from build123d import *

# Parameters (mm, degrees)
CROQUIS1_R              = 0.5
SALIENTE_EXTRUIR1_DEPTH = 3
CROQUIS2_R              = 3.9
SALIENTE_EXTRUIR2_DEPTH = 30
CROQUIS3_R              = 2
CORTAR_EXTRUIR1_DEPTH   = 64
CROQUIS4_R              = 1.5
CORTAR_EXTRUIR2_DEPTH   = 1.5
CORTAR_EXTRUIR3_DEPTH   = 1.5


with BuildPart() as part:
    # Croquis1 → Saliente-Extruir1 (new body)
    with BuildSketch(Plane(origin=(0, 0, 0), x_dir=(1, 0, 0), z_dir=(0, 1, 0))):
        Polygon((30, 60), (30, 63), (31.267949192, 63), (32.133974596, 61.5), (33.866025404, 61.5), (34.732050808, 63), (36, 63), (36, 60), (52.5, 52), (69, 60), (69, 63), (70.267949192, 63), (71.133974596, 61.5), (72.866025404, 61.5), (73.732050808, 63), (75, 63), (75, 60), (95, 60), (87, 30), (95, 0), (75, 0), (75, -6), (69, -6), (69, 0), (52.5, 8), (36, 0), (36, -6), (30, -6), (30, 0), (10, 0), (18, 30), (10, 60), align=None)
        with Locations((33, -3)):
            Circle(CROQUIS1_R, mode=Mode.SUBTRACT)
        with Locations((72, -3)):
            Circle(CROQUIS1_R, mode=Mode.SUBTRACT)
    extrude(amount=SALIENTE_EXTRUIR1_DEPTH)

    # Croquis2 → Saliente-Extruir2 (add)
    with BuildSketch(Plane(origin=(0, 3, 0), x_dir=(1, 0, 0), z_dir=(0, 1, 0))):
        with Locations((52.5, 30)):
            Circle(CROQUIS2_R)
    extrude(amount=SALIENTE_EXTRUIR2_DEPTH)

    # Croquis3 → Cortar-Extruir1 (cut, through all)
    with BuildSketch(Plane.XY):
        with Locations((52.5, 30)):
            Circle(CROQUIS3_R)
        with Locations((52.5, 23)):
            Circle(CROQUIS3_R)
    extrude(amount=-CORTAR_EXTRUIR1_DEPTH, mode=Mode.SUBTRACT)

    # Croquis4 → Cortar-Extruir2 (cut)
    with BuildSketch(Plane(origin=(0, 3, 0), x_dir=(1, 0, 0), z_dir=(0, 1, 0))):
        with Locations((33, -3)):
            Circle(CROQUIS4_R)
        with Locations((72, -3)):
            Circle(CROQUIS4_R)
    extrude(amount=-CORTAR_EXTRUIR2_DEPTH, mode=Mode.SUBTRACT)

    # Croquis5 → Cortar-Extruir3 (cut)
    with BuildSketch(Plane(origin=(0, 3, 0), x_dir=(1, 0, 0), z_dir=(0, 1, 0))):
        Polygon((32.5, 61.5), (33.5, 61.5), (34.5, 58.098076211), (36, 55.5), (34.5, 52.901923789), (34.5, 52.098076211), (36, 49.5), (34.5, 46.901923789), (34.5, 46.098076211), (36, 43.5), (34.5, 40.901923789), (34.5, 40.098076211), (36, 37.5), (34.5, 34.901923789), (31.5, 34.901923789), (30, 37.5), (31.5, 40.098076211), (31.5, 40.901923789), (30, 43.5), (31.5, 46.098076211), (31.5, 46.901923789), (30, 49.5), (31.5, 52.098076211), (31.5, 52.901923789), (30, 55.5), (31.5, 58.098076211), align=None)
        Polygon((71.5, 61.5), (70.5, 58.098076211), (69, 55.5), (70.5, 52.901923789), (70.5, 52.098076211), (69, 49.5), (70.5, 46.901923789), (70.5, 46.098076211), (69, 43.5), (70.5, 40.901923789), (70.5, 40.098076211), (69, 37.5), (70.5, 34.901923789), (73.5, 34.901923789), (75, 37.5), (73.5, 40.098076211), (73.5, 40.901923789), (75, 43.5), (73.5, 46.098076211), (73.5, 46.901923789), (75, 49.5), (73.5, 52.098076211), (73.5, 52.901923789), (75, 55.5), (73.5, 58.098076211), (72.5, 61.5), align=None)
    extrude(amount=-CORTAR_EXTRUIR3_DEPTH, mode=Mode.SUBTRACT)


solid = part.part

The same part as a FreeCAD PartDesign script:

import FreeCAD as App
import Part
import Sketcher

V = App.Vector
Q = App.Units.Quantity

doc = App.newDocument("Part")
body = doc.addObject("PartDesign::Body", "Body")

sketch1 = body.newObject("Sketcher::SketchObject", "Sketch")
sketch1.AttachmentSupport = (doc.getObject("XZ_Plane"), [""])
sketch1.MapMode = "FlatFace"
sketch1.addGeometry([
    Part.LineSegment(V(30, -63, 0), V(30, -60, 0)),
    Part.LineSegment(V(30, -60, 0), V(10, -60, 0)),
    Part.LineSegment(V(10, -60, 0), V(18, -30, 0)),
    Part.LineSegment(V(18, -30, 0), V(10, 0, 0)),
    Part.LineSegment(V(10, 0, 0), V(30, 0, 0)),
    Part.LineSegment(V(30, 0, 0), V(30, 6, 0)),
    Part.LineSegment(V(30, 6, 0), V(36, 6, 0)),
    Part.LineSegment(V(36, 6, 0), V(36, 0, 0)),
    Part.LineSegment(V(36, 0, 0), V(52.5, -8, 0)),
    Part.LineSegment(V(52.5, -8, 0), V(69, 0, 0)),
    Part.LineSegment(V(69, 0, 0), V(69, 6, 0)),
    Part.LineSegment(V(69, 6, 0), V(75, 6, 0)),
    Part.LineSegment(V(75, 6, 0), V(75, 0, 0)),
    Part.LineSegment(V(75, 0, 0), V(95, 0, 0)),
    Part.LineSegment(V(95, 0, 0), V(87, -30, 0)),
    Part.LineSegment(V(87, -30, 0), V(95, -60, 0)),
    Part.LineSegment(V(95, -60, 0), V(75, -60, 0)),
    Part.LineSegment(V(75, -60, 0), V(75, -63, 0)),
    Part.LineSegment(V(75, -63, 0), V(73.732051, -63, 0)),
    Part.LineSegment(V(73.732051, -63, 0), V(72.866025, -61.5, 0)),
    Part.LineSegment(V(72.866025, -61.5, 0), V(71.133975, -61.5, 0)),
    Part.LineSegment(V(71.133975, -61.5, 0), V(70.267949, -63, 0)),
    Part.LineSegment(V(70.267949, -63, 0), V(69, -63, 0)),
    Part.LineSegment(V(69, -63, 0), V(69, -60, 0)),
    Part.LineSegment(V(69, -60, 0), V(52.5, -52, 0)),
    Part.LineSegment(V(52.5, -52, 0), V(36, -60, 0)),
    Part.LineSegment(V(36, -60, 0), V(36, -63, 0)),
    Part.LineSegment(V(36, -63, 0), V(34.732051, -63, 0)),
    Part.LineSegment(V(34.732051, -63, 0), V(33.866025, -61.5, 0)),
    Part.LineSegment(V(33.866025, -61.5, 0), V(32.133975, -61.5, 0)),
    Part.LineSegment(V(32.133975, -61.5, 0), V(31.267949, -63, 0)),
    Part.LineSegment(V(31.267949, -63, 0), V(30, -63, 0)),
    Part.Circle(V(72, 3, 0), V(0, 0, 1), 0.5),
    Part.Circle(V(33, 3, 0), V(0, 0, 1), 0.5),
], False)
sketch1.addConstraint([
    Sketcher.Constraint("Coincident", 0, 2, 1, 1),
    Sketcher.Constraint("Coincident", 1, 2, 2, 1),
    Sketcher.Constraint("Coincident", 2, 2, 3, 1),
    Sketcher.Constraint("Coincident", 3, 2, 4, 1),
    Sketcher.Constraint("Coincident", 4, 2, 5, 1),
    Sketcher.Constraint("Coincident", 5, 2, 6, 1),
    Sketcher.Constraint("Coincident", 6, 2, 7, 1),
    Sketcher.Constraint("Coincident", 7, 2, 8, 1),
    Sketcher.Constraint("Coincident", 8, 2, 9, 1),
    Sketcher.Constraint("Coincident", 9, 2, 10, 1),
    Sketcher.Constraint("Coincident", 10, 2, 11, 1),
    Sketcher.Constraint("Coincident", 11, 2, 12, 1),
    Sketcher.Constraint("Coincident", 12, 2, 13, 1),
    Sketcher.Constraint("Coincident", 13, 2, 14, 1),
    Sketcher.Constraint("Coincident", 14, 2, 15, 1),
    Sketcher.Constraint("Coincident", 15, 2, 16, 1),
    Sketcher.Constraint("Coincident", 16, 2, 17, 1),
    Sketcher.Constraint("Coincident", 17, 2, 18, 1),
    Sketcher.Constraint("Coincident", 18, 2, 19, 1),
    Sketcher.Constraint("Coincident", 19, 2, 20, 1),
    Sketcher.Constraint("Coincident", 20, 2, 21, 1),
    Sketcher.Constraint("Coincident", 21, 2, 22, 1),
    Sketcher.Constraint("Coincident", 22, 2, 23, 1),
    Sketcher.Constraint("Coincident", 23, 2, 24, 1),
    Sketcher.Constraint("Coincident", 24, 2, 25, 1),
    Sketcher.Constraint("Coincident", 25, 2, 26, 1),
    Sketcher.Constraint("Coincident", 26, 2, 27, 1),
    Sketcher.Constraint("Coincident", 27, 2, 28, 1),
    Sketcher.Constraint("Coincident", 28, 2, 29, 1),
    Sketcher.Constraint("Coincident", 29, 2, 30, 1),
    Sketcher.Constraint("Coincident", 30, 2, 31, 1),
    Sketcher.Constraint("Coincident", 31, 2, 0, 1),
    Sketcher.Constraint("Vertical", 0),
    Sketcher.Constraint("Horizontal", 1),
    Sketcher.Constraint("Horizontal", 4),
    Sketcher.Constraint("Vertical", 5),
    Sketcher.Constraint("Horizontal", 6),
    Sketcher.Constraint("Vertical", 7),
    Sketcher.Constraint("Vertical", 10),
    Sketcher.Constraint("Horizontal", 11),
    Sketcher.Constraint("Vertical", 12),
    Sketcher.Constraint("Horizontal", 13),
    Sketcher.Constraint("Horizontal", 16),
    Sketcher.Constraint("Vertical", 17),
    Sketcher.Constraint("Horizontal", 18),
    Sketcher.Constraint("Horizontal", 20),
    Sketcher.Constraint("Horizontal", 22),
    Sketcher.Constraint("Vertical", 23),
    Sketcher.Constraint("Vertical", 26),
    Sketcher.Constraint("Horizontal", 27),
    Sketcher.Constraint("Horizontal", 29),
    Sketcher.Constraint("Horizontal", 31),
    Sketcher.Constraint("Equal", 32, 33),
    Sketcher.Constraint("PointOnObject", 3, 2, -1),
    Sketcher.Constraint("PointOnObject", 7, 2, -1),
    Sketcher.Constraint("PointOnObject", 9, 2, -1),
    Sketcher.Constraint("PointOnObject", 12, 2, -1),
    Sketcher.Constraint("Parallel", 2, 14),
    Sketcher.Constraint("Parallel", 3, 15),
    Sketcher.Constraint("Parallel", 8, 24),
    Sketcher.Constraint("Parallel", 9, 25),
    Sketcher.Constraint("Parallel", 19, 28),
    Sketcher.Constraint("Parallel", 21, 30),
    Sketcher.Constraint("Horizontal", 32, 3, 33, 3),
    Sketcher.Constraint("Horizontal", 6, 2, 10, 2),
    Sketcher.Constraint("Horizontal", 2, 2, 14, 2),
    Sketcher.Constraint("Horizontal", 1, 2, 15, 2),
    Sketcher.Constraint("Horizontal", 18, 2, 21, 2),
    Sketcher.Constraint("Horizontal", 16, 2, 23, 2),
    Sketcher.Constraint("Horizontal", 23, 2, 25, 2),
    Sketcher.Constraint("Horizontal", 22, 2, 26, 2),
    Sketcher.Constraint("Horizontal", 20, 2, 28, 2),
    Sketcher.Constraint("Horizontal", 27, 2, 30, 2),
    Sketcher.Constraint("Vertical", 1, 2, 3, 2),
    Sketcher.Constraint("Vertical", 0, 2, 4, 2),
    Sketcher.Constraint("Vertical", 13, 2, 15, 2),
    Sketcher.Constraint("Vertical", 12, 2, 16, 2),
    Sketcher.Constraint("Vertical", 10, 2, 22, 2),
    Sketcher.Constraint("Vertical", 8, 2, 24, 2),
    Sketcher.Constraint("Vertical", 7, 2, 25, 2),
    Sketcher.Constraint("Equal", 6, 11),
    Sketcher.Constraint("Equal", 4, 13),
    Sketcher.Constraint("Equal", 18, 22),
    Sketcher.Constraint("Equal", 22, 27),
    Sketcher.Constraint("Equal", 20, 29),
    Sketcher.Constraint("Equal", 11, 5),
    Sketcher.Constraint("Equal", 19, 21),
    Sketcher.Constraint("Diameter", 32, 1.0),
    Sketcher.Constraint("DistanceX", 1, 2, 1, 1, 20.0),
    Sketcher.Constraint("DistanceX", 6, 1, 6, 2, 6.0),
    Sketcher.Constraint("DistanceY", 0, 1, 0, 2, 3.0),
    Sketcher.Constraint("Angle", 19, Q("120 deg")),
    Sketcher.Constraint("DistanceX", -1, 1, 32, 3, 72.0),
    Sketcher.Constraint("DistanceY", -1, 1, 32, 3, 3.0),
    Sketcher.Constraint("DistanceX", -1, 1, 33, 3, 33.0),
    Sketcher.Constraint("DistanceX", -1, 1, 0, 2, 30.0),
    Sketcher.Constraint("DistanceY", 0, 2, -1, 1, 60.0),
    Sketcher.Constraint("DistanceX", -1, 1, 2, 2, 18.0),
    Sketcher.Constraint("DistanceY", 8, 2, -1, 1, 8.0),
    Sketcher.Constraint("DistanceX", -1, 1, 9, 2, 69.0),
    Sketcher.Constraint("DistanceY", 19, 2, -1, 1, 61.5),
    Sketcher.Constraint("DistanceX", 18, 2, 18, 1, 1.267949),
])
pad1 = body.newObject("PartDesign::Pad", "Pad")
pad1.Profile = sketch1
pad1.Length = 3
pad1.Reversed = True

sketch2 = body.newObject("Sketcher::SketchObject", "Sketch001")
sketch2.AttachmentSupport = (doc.getObject("XZ_Plane"), [""])
sketch2.MapMode = "FlatFace"
sketch2.AttachmentOffset = App.Placement(V(0, 0, -3), App.Rotation())
sketch2.addGeometry(Part.Circle(V(52.5, -30, 0), V(0, 0, 1), 3.9), False)
sketch2.addConstraint([
    Sketcher.Constraint("Diameter", 0, 7.8),
    Sketcher.Constraint("DistanceY", 0, 3, -1, 1, 30.0),
    Sketcher.Constraint("DistanceX", -1, 1, 0, 3, 52.5),
])
pad2 = body.newObject("PartDesign::Pad", "Pad001")
pad2.Profile = sketch2
pad2.Length = 30
pad2.Reversed = True

sketch3 = body.newObject("Sketcher::SketchObject", "Sketch002")
sketch3.AttachmentSupport = (doc.getObject("XY_Plane"), [""])
sketch3.MapMode = "FlatFace"
sketch3.addGeometry([
    Part.Circle(V(52.5, 30, 0), V(0, 0, 1), 2),
    Part.Circle(V(52.5, 23, 0), V(0, 0, 1), 2),
], False)
sketch3.addConstraint([
    Sketcher.Constraint("Equal", 0, 1),
    Sketcher.Constraint("Vertical", 0, 3, 1, 3),
    Sketcher.Constraint("Diameter", 0, 4.0),
    Sketcher.Constraint("DistanceY", -1, 1, 0, 3, 30.0),
    Sketcher.Constraint("DistanceY", -1, 1, 1, 3, 23.0),
    Sketcher.Constraint("DistanceX", -1, 1, 0, 3, 52.5),
])
pocket1 = body.newObject("PartDesign::Pocket", "Pocket")
pocket1.Profile = sketch3
pocket1.Type = "ThroughAll"

sketch4 = body.newObject("Sketcher::SketchObject", "Sketch003")
sketch4.AttachmentSupport = (doc.getObject("XZ_Plane"), [""])
sketch4.MapMode = "FlatFace"
sketch4.AttachmentOffset = App.Placement(V(0, 0, -3), App.Rotation())
sketch4.addGeometry([
    Part.Circle(V(33, 3, 0), V(0, 0, 1), 1.5),
    Part.Circle(V(72, 3, 0), V(0, 0, 1), 1.5),
], False)
sketch4.addConstraint([
    Sketcher.Constraint("Equal", 0, 1),
    Sketcher.Constraint("Horizontal", 0, 3, 1, 3),
    Sketcher.Constraint("Diameter", 0, 3.0),
    Sketcher.Constraint("DistanceX", -1, 1, 0, 3, 33.0),
    Sketcher.Constraint("DistanceY", -1, 1, 0, 3, 3.0),
    Sketcher.Constraint("DistanceX", -1, 1, 1, 3, 72.0),
])
pocket2 = body.newObject("PartDesign::Pocket", "Pocket001")
pocket2.Profile = sketch4
pocket2.Length = 1.5
pocket2.Reversed = True

sketch5 = body.newObject("Sketcher::SketchObject", "Sketch004")
sketch5.AttachmentSupport = (doc.getObject("XZ_Plane"), [""])
sketch5.MapMode = "FlatFace"
sketch5.AttachmentOffset = App.Placement(V(0, 0, -3), App.Rotation())
sketch5.addGeometry([
    Part.LineSegment(V(33.5, -61.5, 0), V(32.5, -61.5, 0)),
    Part.LineSegment(V(32.5, -61.5, 0), V(31.5, -58.098076, 0)),
    Part.LineSegment(V(31.5, -58.098076, 0), V(30, -55.5, 0)),
    Part.LineSegment(V(30, -55.5, 0), V(31.5, -52.901924, 0)),
    Part.LineSegment(V(31.5, -52.901924, 0), V(31.5, -52.098076, 0)),
    Part.LineSegment(V(31.5, -52.098076, 0), V(30, -49.5, 0)),
    Part.LineSegment(V(30, -49.5, 0), V(31.5, -46.901924, 0)),
    Part.LineSegment(V(31.5, -46.901924, 0), V(31.5, -46.098076, 0)),
    Part.LineSegment(V(31.5, -46.098076, 0), V(30, -43.5, 0)),
    Part.LineSegment(V(30, -43.5, 0), V(31.5, -40.901924, 0)),
    Part.LineSegment(V(31.5, -40.901924, 0), V(31.5, -40.098076, 0)),
    Part.LineSegment(V(31.5, -40.098076, 0), V(30, -37.5, 0)),
    Part.LineSegment(V(30, -37.5, 0), V(31.5, -34.901924, 0)),
    Part.LineSegment(V(31.5, -34.901924, 0), V(34.5, -34.901924, 0)),
    Part.LineSegment(V(34.5, -34.901924, 0), V(36, -37.5, 0)),
    Part.LineSegment(V(36, -37.5, 0), V(34.5, -40.098076, 0)),
    Part.LineSegment(V(34.5, -40.098076, 0), V(34.5, -40.901924, 0)),
    Part.LineSegment(V(34.5, -40.901924, 0), V(36, -43.5, 0)),
    Part.LineSegment(V(36, -43.5, 0), V(34.5, -46.098076, 0)),
    Part.LineSegment(V(34.5, -46.098076, 0), V(34.5, -46.901924, 0)),
    Part.LineSegment(V(34.5, -46.901924, 0), V(36, -49.5, 0)),
    Part.LineSegment(V(36, -49.5, 0), V(34.5, -52.098076, 0)),
    Part.LineSegment(V(34.5, -52.098076, 0), V(34.5, -52.901924, 0)),
    Part.LineSegment(V(34.5, -52.901924, 0), V(36, -55.5, 0)),
    Part.LineSegment(V(36, -55.5, 0), V(34.5, -58.098076, 0)),
    Part.LineSegment(V(34.5, -58.098076, 0), V(33.5, -61.5, 0)),
    Part.LineSegment(V(71.5, -61.5, 0), V(70.5, -58.098076, 0)),
    Part.LineSegment(V(70.5, -58.098076, 0), V(69, -55.5, 0)),
    Part.LineSegment(V(69, -55.5, 0), V(70.5, -52.901924, 0)),
    Part.LineSegment(V(70.5, -52.901924, 0), V(70.5, -52.098076, 0)),
    Part.LineSegment(V(70.5, -52.098076, 0), V(69, -49.5, 0)),
    Part.LineSegment(V(69, -49.5, 0), V(70.5, -46.901924, 0)),
    Part.LineSegment(V(70.5, -46.901924, 0), V(70.5, -46.098076, 0)),
    Part.LineSegment(V(70.5, -46.098076, 0), V(69, -43.5, 0)),
    Part.LineSegment(V(69, -43.5, 0), V(70.5, -40.901924, 0)),
    Part.LineSegment(V(70.5, -40.901924, 0), V(70.5, -40.098076, 0)),
    Part.LineSegment(V(70.5, -40.098076, 0), V(69, -37.5, 0)),
    Part.LineSegment(V(69, -37.5, 0), V(70.5, -34.901924, 0)),
    Part.LineSegment(V(70.5, -34.901924, 0), V(73.5, -34.901924, 0)),
    Part.LineSegment(V(73.5, -34.901924, 0), V(75, -37.5, 0)),
    Part.LineSegment(V(75, -37.5, 0), V(73.5, -40.098076, 0)),
    Part.LineSegment(V(73.5, -40.098076, 0), V(73.5, -40.901924, 0)),
    Part.LineSegment(V(73.5, -40.901924, 0), V(75, -43.5, 0)),
    Part.LineSegment(V(75, -43.5, 0), V(73.5, -46.098076, 0)),
    Part.LineSegment(V(73.5, -46.098076, 0), V(73.5, -46.901924, 0)),
    Part.LineSegment(V(73.5, -46.901924, 0), V(75, -49.5, 0)),
    Part.LineSegment(V(75, -49.5, 0), V(73.5, -52.098076, 0)),
    Part.LineSegment(V(73.5, -52.098076, 0), V(73.5, -52.901924, 0)),
    Part.LineSegment(V(73.5, -52.901924, 0), V(75, -55.5, 0)),
    Part.LineSegment(V(75, -55.5, 0), V(73.5, -58.098076, 0)),
    Part.LineSegment(V(73.5, -58.098076, 0), V(72.5, -61.5, 0)),
    Part.LineSegment(V(72.5, -61.5, 0), V(71.5, -61.5, 0)),
], False)
sketch5.addConstraint([
    Sketcher.Constraint("Coincident", 0, 2, 1, 1),
    Sketcher.Constraint("Coincident", 1, 2, 2, 1),
    Sketcher.Constraint("Coincident", 2, 2, 3, 1),
    Sketcher.Constraint("Coincident", 3, 2, 4, 1),
    Sketcher.Constraint("Coincident", 4, 2, 5, 1),
    Sketcher.Constraint("Coincident", 5, 2, 6, 1),
    Sketcher.Constraint("Coincident", 6, 2, 7, 1),
    Sketcher.Constraint("Coincident", 7, 2, 8, 1),
    Sketcher.Constraint("Coincident", 8, 2, 9, 1),
    Sketcher.Constraint("Coincident", 9, 2, 10, 1),
    Sketcher.Constraint("Coincident", 10, 2, 11, 1),
    Sketcher.Constraint("Coincident", 11, 2, 12, 1),
    Sketcher.Constraint("Coincident", 12, 2, 13, 1),
    Sketcher.Constraint("Coincident", 13, 2, 14, 1),
    Sketcher.Constraint("Coincident", 14, 2, 15, 1),
    Sketcher.Constraint("Coincident", 15, 2, 16, 1),
    Sketcher.Constraint("Coincident", 16, 2, 17, 1),
    Sketcher.Constraint("Coincident", 17, 2, 18, 1),
    Sketcher.Constraint("Coincident", 18, 2, 19, 1),
    Sketcher.Constraint("Coincident", 19, 2, 20, 1),
    Sketcher.Constraint("Coincident", 20, 2, 21, 1),
    Sketcher.Constraint("Coincident", 21, 2, 22, 1),
    Sketcher.Constraint("Coincident", 22, 2, 23, 1),
    Sketcher.Constraint("Coincident", 23, 2, 24, 1),
    Sketcher.Constraint("Coincident", 24, 2, 25, 1),
    Sketcher.Constraint("Coincident", 25, 2, 0, 1),
    Sketcher.Constraint("Coincident", 26, 2, 27, 1),
    Sketcher.Constraint("Coincident", 27, 2, 28, 1),
    Sketcher.Constraint("Coincident", 28, 2, 29, 1),
    Sketcher.Constraint("Coincident", 29, 2, 30, 1),
    Sketcher.Constraint("Coincident", 30, 2, 31, 1),
    Sketcher.Constraint("Coincident", 31, 2, 32, 1),
    Sketcher.Constraint("Coincident", 32, 2, 33, 1),
    Sketcher.Constraint("Coincident", 33, 2, 34, 1),
    Sketcher.Constraint("Coincident", 34, 2, 35, 1),
    Sketcher.Constraint("Coincident", 35, 2, 36, 1),
    Sketcher.Constraint("Coincident", 36, 2, 37, 1),
    Sketcher.Constraint("Coincident", 37, 2, 38, 1),
    Sketcher.Constraint("Coincident", 38, 2, 39, 1),
    Sketcher.Constraint("Coincident", 39, 2, 40, 1),
    Sketcher.Constraint("Coincident", 40, 2, 41, 1),
    Sketcher.Constraint("Coincident", 41, 2, 42, 1),
    Sketcher.Constraint("Coincident", 42, 2, 43, 1),
    Sketcher.Constraint("Coincident", 43, 2, 44, 1),
    Sketcher.Constraint("Coincident", 44, 2, 45, 1),
    Sketcher.Constraint("Coincident", 45, 2, 46, 1),
    Sketcher.Constraint("Coincident", 46, 2, 47, 1),
    Sketcher.Constraint("Coincident", 47, 2, 48, 1),
    Sketcher.Constraint("Coincident", 48, 2, 49, 1),
    Sketcher.Constraint("Coincident", 49, 2, 50, 1),
    Sketcher.Constraint("Coincident", 50, 2, 51, 1),
    Sketcher.Constraint("Coincident", 51, 2, 26, 1),
    Sketcher.Constraint("Horizontal", 0),
    Sketcher.Constraint("Vertical", 4),
    Sketcher.Constraint("Vertical", 7),
    Sketcher.Constraint("Vertical", 10),
    Sketcher.Constraint("Horizontal", 13),
    Sketcher.Constraint("Vertical", 16),
    Sketcher.Constraint("Vertical", 19),
    Sketcher.Constraint("Vertical", 22),
    Sketcher.Constraint("Vertical", 29),
    Sketcher.Constraint("Vertical", 32),
    Sketcher.Constraint("Vertical", 35),
    Sketcher.Constraint("Horizontal", 38),
    Sketcher.Constraint("Vertical", 41),
    Sketcher.Constraint("Vertical", 44),
    Sketcher.Constraint("Vertical", 47),
    Sketcher.Constraint("Horizontal", 51),
    Sketcher.Constraint("Parallel", 2, 5),
    Sketcher.Constraint("Parallel", 3, 6),
    Sketcher.Constraint("Parallel", 5, 8),
    Sketcher.Constraint("Parallel", 6, 9),
    Sketcher.Constraint("Parallel", 8, 11),
    Sketcher.Constraint("Parallel", 9, 12),
    Sketcher.Constraint("Parallel", 11, 14),
    Sketcher.Constraint("Parallel", 12, 15),
    Sketcher.Constraint("Parallel", 14, 17),
    Sketcher.Constraint("Parallel", 15, 18),
    Sketcher.Constraint("Parallel", 17, 20),
    Sketcher.Constraint("Parallel", 18, 21),
    Sketcher.Constraint("Parallel", 20, 23),
    Sketcher.Constraint("Parallel", 21, 24),
    Sketcher.Constraint("Parallel", 1, 26),
    Sketcher.Constraint("Parallel", 23, 27),
    Sketcher.Constraint("Parallel", 24, 28),
    Sketcher.Constraint("Parallel", 27, 30),
    Sketcher.Constraint("Parallel", 28, 31),
    Sketcher.Constraint("Parallel", 30, 33),
    Sketcher.Constraint("Parallel", 31, 34),
    Sketcher.Constraint("Parallel", 33, 36),
    Sketcher.Constraint("Parallel", 34, 37),
    Sketcher.Constraint("Parallel", 36, 39),
    Sketcher.Constraint("Parallel", 37, 40),
    Sketcher.Constraint("Parallel", 39, 42),
    Sketcher.Constraint("Parallel", 40, 43),
    Sketcher.Constraint("Parallel", 42, 45),
    Sketcher.Constraint("Parallel", 43, 46),
    Sketcher.Constraint("Parallel", 45, 48),
    Sketcher.Constraint("Parallel", 46, 49),
    Sketcher.Constraint("Parallel", 25, 50),
    Sketcher.Constraint("Horizontal", 11, 2, 14, 2),
    Sketcher.Constraint("Horizontal", 10, 2, 15, 2),
    Sketcher.Constraint("Horizontal", 9, 2, 16, 2),
    Sketcher.Constraint("Horizontal", 8, 2, 17, 2),
    Sketcher.Constraint("Horizontal", 7, 2, 18, 2),
    Sketcher.Constraint("Horizontal", 6, 2, 19, 2),
    Sketcher.Constraint("Horizontal", 5, 2, 20, 2),
    Sketcher.Constraint("Horizontal", 4, 2, 21, 2),
    Sketcher.Constraint("Horizontal", 3, 2, 22, 2),
    Sketcher.Constraint("Horizontal", 2, 2, 23, 2),
    Sketcher.Constraint("Horizontal", 1, 2, 24, 2),
    Sketcher.Constraint("Horizontal", 24, 2, 26, 2),
    Sketcher.Constraint("Horizontal", 23, 2, 27, 2),
    Sketcher.Constraint("Horizontal", 22, 2, 28, 2),
    Sketcher.Constraint("Horizontal", 21, 2, 29, 2),
    Sketcher.Constraint("Horizontal", 20, 2, 30, 2),
    Sketcher.Constraint("Horizontal", 19, 2, 31, 2),
    Sketcher.Constraint("Horizontal", 18, 2, 32, 2),
    Sketcher.Constraint("Horizontal", 17, 2, 33, 2),
    Sketcher.Constraint("Horizontal", 16, 2, 34, 2),
    Sketcher.Constraint("Horizontal", 15, 2, 35, 2),
    Sketcher.Constraint("Horizontal", 14, 2, 36, 2),
    Sketcher.Constraint("Horizontal", 13, 2, 37, 2),
    Sketcher.Constraint("Horizontal", 36, 2, 39, 2),
    Sketcher.Constraint("Horizontal", 35, 2, 40, 2),
    Sketcher.Constraint("Horizontal", 34, 2, 41, 2),
    Sketcher.Constraint("Horizontal", 33, 2, 42, 2),
    Sketcher.Constraint("Horizontal", 32, 2, 43, 2),
    Sketcher.Constraint("Horizontal", 31, 2, 44, 2),
    Sketcher.Constraint("Horizontal", 30, 2, 45, 2),
    Sketcher.Constraint("Horizontal", 29, 2, 46, 2),
    Sketcher.Constraint("Horizontal", 28, 2, 47, 2),
    Sketcher.Constraint("Horizontal", 27, 2, 48, 2),
    Sketcher.Constraint("Horizontal", 26, 2, 49, 2),
    Sketcher.Constraint("Horizontal", 25, 2, 50, 2),
    Sketcher.Constraint("Vertical", 1, 2, 3, 2),
    Sketcher.Constraint("Vertical", 2, 2, 5, 2),
    Sketcher.Constraint("Vertical", 4, 2, 6, 2),
    Sketcher.Constraint("Vertical", 5, 2, 8, 2),
    Sketcher.Constraint("Vertical", 7, 2, 9, 2),
    Sketcher.Constraint("Vertical", 8, 2, 11, 2),
    Sketcher.Constraint("Vertical", 10, 2, 12, 2),
    Sketcher.Constraint("Vertical", 13, 2, 15, 2),
    Sketcher.Constraint("Equal", 13, 38),
    Sketcher.Constraint("Equal", 4, 7),
    Sketcher.Constraint("Equal", 7, 10),
    Sketcher.Constraint("Equal", 1, 25),
    Sketcher.Constraint("DistanceX", 0, 2, 0, 1, 1.0),
    Sketcher.Constraint("DistanceX", 13, 1, 13, 2, 3.0),
    Sketcher.Constraint("Angle", 2, Q("120 deg")),
    Sketcher.Constraint("Distance", 2, 3.0),
    Sketcher.Constraint("DistanceX", -1, 1, 2, 2, 30.0),
    Sketcher.Constraint("DistanceX", -1, 1, 27, 2, 69.0),
    Sketcher.Constraint("DistanceY", 0, 2, 2, 2, 6.0),
    Sketcher.Constraint("DistanceY", 1, 2, 4, 2, 6.0),
    Sketcher.Constraint("DistanceY", 0, 2, -1, 1, 61.5),
])
pocket3 = body.newObject("PartDesign::Pocket", "Pocket002")
pocket3.Profile = sketch5
pocket3.Length = 1.5
pocket3.Reversed = True

doc.recompute()
